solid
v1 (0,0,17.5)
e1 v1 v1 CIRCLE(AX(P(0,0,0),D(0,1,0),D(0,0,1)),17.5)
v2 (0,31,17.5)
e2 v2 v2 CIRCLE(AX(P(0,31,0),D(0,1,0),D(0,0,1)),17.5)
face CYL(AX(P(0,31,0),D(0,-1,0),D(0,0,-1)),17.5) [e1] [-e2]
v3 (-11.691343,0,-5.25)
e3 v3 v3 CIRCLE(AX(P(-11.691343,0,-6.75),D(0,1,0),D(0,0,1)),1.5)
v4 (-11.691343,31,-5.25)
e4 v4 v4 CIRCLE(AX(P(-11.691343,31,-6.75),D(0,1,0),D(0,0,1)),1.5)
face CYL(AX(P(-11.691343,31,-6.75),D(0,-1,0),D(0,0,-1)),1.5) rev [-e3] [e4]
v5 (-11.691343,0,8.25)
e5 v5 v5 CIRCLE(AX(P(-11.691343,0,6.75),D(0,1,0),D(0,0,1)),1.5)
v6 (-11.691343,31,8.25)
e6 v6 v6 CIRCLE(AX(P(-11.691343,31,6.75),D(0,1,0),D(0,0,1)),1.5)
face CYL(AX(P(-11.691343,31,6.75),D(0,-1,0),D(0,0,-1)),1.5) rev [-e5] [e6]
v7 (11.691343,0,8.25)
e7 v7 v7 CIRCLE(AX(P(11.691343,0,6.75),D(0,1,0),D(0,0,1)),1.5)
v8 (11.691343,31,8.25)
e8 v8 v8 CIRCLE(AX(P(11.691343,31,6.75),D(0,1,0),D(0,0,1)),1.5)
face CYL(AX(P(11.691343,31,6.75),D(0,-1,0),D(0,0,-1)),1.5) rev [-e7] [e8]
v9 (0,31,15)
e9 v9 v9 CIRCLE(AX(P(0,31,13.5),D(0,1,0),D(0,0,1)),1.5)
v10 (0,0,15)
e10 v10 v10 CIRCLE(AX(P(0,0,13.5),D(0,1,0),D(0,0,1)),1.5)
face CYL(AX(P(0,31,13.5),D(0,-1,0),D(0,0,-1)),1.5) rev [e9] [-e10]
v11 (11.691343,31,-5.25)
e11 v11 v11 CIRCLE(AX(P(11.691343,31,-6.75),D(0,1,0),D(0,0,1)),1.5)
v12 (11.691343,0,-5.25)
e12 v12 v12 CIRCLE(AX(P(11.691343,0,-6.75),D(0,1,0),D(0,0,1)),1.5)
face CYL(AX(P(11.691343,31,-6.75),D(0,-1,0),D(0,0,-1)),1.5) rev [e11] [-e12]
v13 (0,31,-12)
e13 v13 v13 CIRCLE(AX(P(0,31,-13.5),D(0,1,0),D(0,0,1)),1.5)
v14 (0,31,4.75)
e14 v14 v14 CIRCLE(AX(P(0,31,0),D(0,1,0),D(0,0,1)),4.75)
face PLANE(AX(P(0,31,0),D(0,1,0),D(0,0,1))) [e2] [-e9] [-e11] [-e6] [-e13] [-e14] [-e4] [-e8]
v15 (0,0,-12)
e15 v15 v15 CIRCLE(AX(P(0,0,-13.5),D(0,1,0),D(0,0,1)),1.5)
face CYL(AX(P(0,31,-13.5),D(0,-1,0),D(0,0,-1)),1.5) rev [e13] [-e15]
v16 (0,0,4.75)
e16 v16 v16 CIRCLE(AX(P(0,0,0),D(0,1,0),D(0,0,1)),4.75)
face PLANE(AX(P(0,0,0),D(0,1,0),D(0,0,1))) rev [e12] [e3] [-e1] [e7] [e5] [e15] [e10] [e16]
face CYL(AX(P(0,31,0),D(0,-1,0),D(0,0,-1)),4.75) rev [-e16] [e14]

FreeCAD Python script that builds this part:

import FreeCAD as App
import Part
import Sketcher

doc = App.newDocument("Part")
body = doc.addObject("PartDesign::Body", "Body")

sketch1 = body.newObject("Sketcher::SketchObject", "Sketch")
sketch1.AttachmentSupport = (doc.getObject("XZ_Plane"), [""])
sketch1.MapMode = "FlatFace"
sketch1.addGeometry(Part.Circle(App.Vector(0, 0, 0), App.Vector(0, 0, 1), 17.5), False)
sketch1.addGeometry(Part.Circle(App.Vector(-11.691343, 6.75, 0), App.Vector(0, 0, 1), 1.5), False)
sketch1.addGeometry(Part.Circle(App.Vector(0, 13.5, 0), App.Vector(0, 0, 1), 1.5), False)
sketch1.addGeometry(Part.Circle(App.Vector(11.691343, 6.75, 0), App.Vector(0, 0, 1), 1.5), False)
sketch1.addGeometry(Part.Circle(App.Vector(-11.691343, -6.75, 0), App.Vector(0, 0, 1), 1.5), False)
sketch1.addGeometry(Part.Circle(App.Vector(0, 0, 0), App.Vector(0, 0, 1), 4.75), False)
sketch1.addGeometry(Part.Circle(App.Vector(11.691343, -6.75, 0), App.Vector(0, 0, 1), 1.5), False)
sketch1.addGeometry(Part.Circle(App.Vector(0, -13.5, 0), App.Vector(0, 0, 1), 1.5), False)
sketch1.addConstraint(Sketcher.Constraint("Coincident", 0, 3, -1, 1))
sketch1.addConstraint(Sketcher.Constraint("Coincident", 5, 3, -1, 1))
sketch1.addConstraint(Sketcher.Constraint("Equal", 1, 2))
sketch1.addConstraint(Sketcher.Constraint("Equal", 2, 3))
sketch1.addConstraint(Sketcher.Constraint("Equal", 3, 4))
sketch1.addConstraint(Sketcher.Constraint("Equal", 4, 6))
sketch1.addConstraint(Sketcher.Constraint("Equal", 6, 7))
sketch1.addConstraint(Sketcher.Constraint("Symmetric", 3, 3, 4, 3, -1, 1))
sketch1.addConstraint(Sketcher.Constraint("Symmetric", 1, 3, 6, 3, -1, 1))
sketch1.addConstraint(Sketcher.Constraint("Symmetric", 2, 3, 7, 3, -1, 1))
sketch1.addConstraint(Sketcher.Constraint("Symmetric", 1, 3, 3, 3, -2))
sketch1.addConstraint(Sketcher.Constraint("PointOnObject", 2, 3, -2))
sketch1.addConstraint(Sketcher.Constraint("Diameter", 0, 35.0))
sketch1.addConstraint(Sketcher.Constraint("Diameter", 1, 3.0))
sketch1.addConstraint(Sketcher.Constraint("Diameter", 5, 9.5))
sketch1.addConstraint(Sketcher.Constraint("DistanceY", -1, 1, 2, 3, 13.5))
sketch1.addConstraint(Sketcher.Constraint("DistanceY", 4, 3, 1, 3, 13.5))
sketch1.addConstraint(Sketcher.Constraint("DistanceX", 1, 3, -1, 1, 11.691343))
pad1 = body.newObject("PartDesign::Pad", "Pad")
pad1.Profile = sketch1
pad1.Length = 31
pad1.Reversed = True

doc.recompute()
